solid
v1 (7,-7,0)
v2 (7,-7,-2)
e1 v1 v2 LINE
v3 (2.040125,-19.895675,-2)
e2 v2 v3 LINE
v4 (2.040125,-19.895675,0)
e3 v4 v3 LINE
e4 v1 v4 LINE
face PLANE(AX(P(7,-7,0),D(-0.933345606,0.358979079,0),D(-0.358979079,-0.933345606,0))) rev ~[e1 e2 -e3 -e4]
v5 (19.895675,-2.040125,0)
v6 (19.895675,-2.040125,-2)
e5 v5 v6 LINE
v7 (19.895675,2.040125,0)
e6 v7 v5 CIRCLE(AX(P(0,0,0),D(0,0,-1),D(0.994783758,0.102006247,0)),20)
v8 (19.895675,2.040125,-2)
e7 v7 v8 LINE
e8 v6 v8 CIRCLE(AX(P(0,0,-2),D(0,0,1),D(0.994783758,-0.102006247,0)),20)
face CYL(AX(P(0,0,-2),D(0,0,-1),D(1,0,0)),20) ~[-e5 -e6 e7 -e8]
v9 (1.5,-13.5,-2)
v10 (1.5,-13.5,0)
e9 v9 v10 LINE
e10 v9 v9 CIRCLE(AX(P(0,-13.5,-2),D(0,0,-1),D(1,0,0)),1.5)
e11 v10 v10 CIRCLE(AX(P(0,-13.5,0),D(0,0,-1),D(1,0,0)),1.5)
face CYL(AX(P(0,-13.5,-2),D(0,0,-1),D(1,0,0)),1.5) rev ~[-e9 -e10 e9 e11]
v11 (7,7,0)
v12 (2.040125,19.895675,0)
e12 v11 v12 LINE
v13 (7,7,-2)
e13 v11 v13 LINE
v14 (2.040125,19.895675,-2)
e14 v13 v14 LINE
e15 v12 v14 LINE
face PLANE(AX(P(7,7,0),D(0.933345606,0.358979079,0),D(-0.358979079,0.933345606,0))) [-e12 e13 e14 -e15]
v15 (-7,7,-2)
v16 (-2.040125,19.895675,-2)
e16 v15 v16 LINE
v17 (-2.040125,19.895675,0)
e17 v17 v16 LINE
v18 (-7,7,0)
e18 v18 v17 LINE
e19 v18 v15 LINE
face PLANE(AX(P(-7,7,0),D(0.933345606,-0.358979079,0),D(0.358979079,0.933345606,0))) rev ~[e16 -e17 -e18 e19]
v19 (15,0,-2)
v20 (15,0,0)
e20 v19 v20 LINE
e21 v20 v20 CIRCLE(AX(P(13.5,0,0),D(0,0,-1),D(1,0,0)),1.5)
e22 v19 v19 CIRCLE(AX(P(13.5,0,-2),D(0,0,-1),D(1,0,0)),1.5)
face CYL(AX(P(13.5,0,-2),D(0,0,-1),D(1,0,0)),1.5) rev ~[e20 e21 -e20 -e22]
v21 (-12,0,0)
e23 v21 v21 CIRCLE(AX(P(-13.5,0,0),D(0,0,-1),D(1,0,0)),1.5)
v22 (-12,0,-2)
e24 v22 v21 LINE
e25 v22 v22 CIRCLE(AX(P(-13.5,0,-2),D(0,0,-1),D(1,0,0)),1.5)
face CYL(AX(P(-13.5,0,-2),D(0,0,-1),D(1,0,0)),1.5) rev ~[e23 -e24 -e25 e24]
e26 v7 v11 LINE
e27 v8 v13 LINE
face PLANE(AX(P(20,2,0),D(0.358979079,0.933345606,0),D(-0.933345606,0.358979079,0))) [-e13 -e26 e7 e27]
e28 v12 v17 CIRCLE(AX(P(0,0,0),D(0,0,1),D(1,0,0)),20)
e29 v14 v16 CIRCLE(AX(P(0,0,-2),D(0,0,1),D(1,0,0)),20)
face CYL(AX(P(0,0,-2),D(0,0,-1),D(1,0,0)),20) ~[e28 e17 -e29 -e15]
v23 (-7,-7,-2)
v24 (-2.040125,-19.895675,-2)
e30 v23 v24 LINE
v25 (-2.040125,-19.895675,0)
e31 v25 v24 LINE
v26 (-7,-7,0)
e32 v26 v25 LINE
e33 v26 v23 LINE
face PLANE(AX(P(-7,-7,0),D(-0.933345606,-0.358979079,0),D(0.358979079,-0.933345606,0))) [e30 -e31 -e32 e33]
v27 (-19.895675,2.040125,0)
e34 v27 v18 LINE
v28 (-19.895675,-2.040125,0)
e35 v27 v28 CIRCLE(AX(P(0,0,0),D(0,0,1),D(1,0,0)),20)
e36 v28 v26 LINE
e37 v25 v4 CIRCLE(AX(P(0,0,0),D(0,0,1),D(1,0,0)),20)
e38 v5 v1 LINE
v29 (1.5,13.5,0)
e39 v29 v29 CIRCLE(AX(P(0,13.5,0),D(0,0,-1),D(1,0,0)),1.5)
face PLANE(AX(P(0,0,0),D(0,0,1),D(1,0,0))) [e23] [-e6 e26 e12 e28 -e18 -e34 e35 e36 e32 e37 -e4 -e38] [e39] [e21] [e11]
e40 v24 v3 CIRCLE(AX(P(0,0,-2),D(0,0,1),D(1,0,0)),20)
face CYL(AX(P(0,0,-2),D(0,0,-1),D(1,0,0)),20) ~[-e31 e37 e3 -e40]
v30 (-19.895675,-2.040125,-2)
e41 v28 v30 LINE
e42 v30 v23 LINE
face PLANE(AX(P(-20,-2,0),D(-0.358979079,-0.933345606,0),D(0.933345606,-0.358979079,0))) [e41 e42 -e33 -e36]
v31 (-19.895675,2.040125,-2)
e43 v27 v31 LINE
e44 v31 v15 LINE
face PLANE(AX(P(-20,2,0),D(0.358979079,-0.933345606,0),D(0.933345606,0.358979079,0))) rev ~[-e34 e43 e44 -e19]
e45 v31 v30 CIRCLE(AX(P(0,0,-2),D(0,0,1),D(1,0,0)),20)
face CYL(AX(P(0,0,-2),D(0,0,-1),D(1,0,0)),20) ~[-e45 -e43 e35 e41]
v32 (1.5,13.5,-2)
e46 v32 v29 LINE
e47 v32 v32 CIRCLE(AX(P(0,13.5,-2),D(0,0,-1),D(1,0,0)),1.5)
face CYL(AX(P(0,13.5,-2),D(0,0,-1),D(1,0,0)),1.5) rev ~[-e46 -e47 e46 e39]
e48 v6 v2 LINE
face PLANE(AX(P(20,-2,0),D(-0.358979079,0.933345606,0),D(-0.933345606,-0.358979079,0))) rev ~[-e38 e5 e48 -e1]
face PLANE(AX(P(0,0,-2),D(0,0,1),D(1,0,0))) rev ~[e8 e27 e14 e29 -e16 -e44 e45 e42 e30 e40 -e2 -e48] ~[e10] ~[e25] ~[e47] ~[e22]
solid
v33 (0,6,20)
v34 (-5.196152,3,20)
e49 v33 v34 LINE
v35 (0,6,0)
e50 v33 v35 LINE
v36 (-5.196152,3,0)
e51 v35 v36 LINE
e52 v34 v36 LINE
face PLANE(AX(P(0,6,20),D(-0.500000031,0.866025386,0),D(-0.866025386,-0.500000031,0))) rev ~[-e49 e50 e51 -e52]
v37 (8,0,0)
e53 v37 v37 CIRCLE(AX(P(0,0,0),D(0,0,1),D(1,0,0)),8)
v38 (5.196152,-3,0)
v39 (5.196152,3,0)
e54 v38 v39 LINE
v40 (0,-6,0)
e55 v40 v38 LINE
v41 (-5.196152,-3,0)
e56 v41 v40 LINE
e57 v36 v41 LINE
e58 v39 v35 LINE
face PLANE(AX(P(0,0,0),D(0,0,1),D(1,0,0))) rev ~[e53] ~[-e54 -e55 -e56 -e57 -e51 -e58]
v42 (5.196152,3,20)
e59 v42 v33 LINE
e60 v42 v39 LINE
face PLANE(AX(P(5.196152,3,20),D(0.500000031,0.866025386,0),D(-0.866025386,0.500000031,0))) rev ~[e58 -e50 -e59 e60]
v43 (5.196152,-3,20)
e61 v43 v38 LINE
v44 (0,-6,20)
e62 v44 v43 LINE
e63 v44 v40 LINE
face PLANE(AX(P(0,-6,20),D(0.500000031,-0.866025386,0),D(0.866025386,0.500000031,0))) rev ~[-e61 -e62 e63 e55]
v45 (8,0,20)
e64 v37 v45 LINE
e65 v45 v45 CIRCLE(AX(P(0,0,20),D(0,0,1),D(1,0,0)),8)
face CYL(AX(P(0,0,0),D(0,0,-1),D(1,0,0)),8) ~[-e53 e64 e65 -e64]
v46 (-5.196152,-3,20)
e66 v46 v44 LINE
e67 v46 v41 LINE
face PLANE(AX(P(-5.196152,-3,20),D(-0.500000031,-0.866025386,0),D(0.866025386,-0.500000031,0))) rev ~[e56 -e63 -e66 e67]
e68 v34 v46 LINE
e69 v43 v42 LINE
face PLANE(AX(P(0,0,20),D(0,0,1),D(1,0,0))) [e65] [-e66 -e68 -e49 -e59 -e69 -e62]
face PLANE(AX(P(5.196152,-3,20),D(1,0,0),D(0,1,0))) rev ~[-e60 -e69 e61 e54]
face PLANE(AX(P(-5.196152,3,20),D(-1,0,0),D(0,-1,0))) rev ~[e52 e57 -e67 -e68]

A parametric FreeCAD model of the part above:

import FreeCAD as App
import Part
import Sketcher
Q = App.Units.Quantity

doc = App.newDocument("Part")
body = doc.addObject("PartDesign::Body", "Body")

# Sketch on XY plane
sketch1 = body.newObject("Sketcher::SketchObject", "Sketch")
sketch1.AttachmentSupport = (doc.getObject("XY_Plane"), [""])
sketch1.MapMode = "FlatFace"
sketch1.AttachmentOffset = App.Placement(App.Vector(0, 0, 20), App.Rotation())
sketch1.addGeometry([
    Part.LineSegment(App.Vector(0, 6, 0), App.Vector(-5, 3, 0)),  # 0
    Part.LineSegment(App.Vector(-5, 3, 0), App.Vector(-5, -3, 0)),  # 1
    Part.LineSegment(App.Vector(-5, -3, 0), App.Vector(0, -6, 0)),  # 2
    Part.LineSegment(App.Vector(0, -6, 0), App.Vector(5, -3, 0)),  # 3
    Part.LineSegment(App.Vector(5, -3, 0), App.Vector(5, 3, 0)),  # 4
    Part.LineSegment(App.Vector(5, 3, 0), App.Vector(0, 6, 0)),  # 5
], False)
sketch1.addConstraint([
    Sketcher.Constraint("Coincident", 0, 2, 1, 1),
    Sketcher.Constraint("Coincident", 1, 2, 2, 1),
    Sketcher.Constraint("Coincident", 2, 2, 3, 1),
    Sketcher.Constraint("Coincident", 3, 2, 4, 1),
    Sketcher.Constraint("Coincident", 4, 2, 5, 1),
    Sketcher.Constraint("Coincident", 5, 2, 0, 1),
    Sketcher.Constraint("Vertical", 1),
    Sketcher.Constraint("Vertical", 4),
    Sketcher.Constraint("Symmetric", 0, 2, 3, 2, -1, 1),
    Sketcher.Constraint("Symmetric", 2, 2, 5, 2, -1, 1),
    Sketcher.Constraint("PointOnObject", 2, 2, -2),
    Sketcher.Constraint("Parallel", 2, 5),
    Sketcher.Constraint("Horizontal", 1, 2, 3, 2),
    Sketcher.Constraint("DistanceY", 1, 2, 1, 1, 6.0),
    Sketcher.Constraint("Angle", 0, Q("-149.999998 deg")),
    Sketcher.Constraint("Distance", 0, 6.0),
])
pad1 = body.newObject("PartDesign::Pad", "Pad")
pad1.Profile = sketch1
pad1.Length = 30
pad1.Reversed = True
body2 = doc.addObject("PartDesign::Body", "Body001")

# Sketch on XY plane
sketch2 = body2.newObject("Sketcher::SketchObject", "Sketch001")
sketch2.AttachmentSupport = (doc.getObject("XY_Plane001"), [""])
sketch2.MapMode = "FlatFace"
sketch2.addGeometry(Part.Circle(App.Vector(0, 0, 0), App.Vector(0, 0, 1), 8), False)
sketch2.addConstraint([
    Sketcher.Constraint("Coincident", 0, 3, -1, 1),
    Sketcher.Constraint("Diameter", 0, 16.0),
])
pad2 = body2.newObject("PartDesign::Pad", "Pad001")
pad2.Profile = sketch2
pad2.Length = 20
doc.recompute()

boolean = body2.newObject("PartDesign::Boolean", "Boolean")
boolean.Type = "Cut"
boolean.addObjects([body])
body3 = doc.addObject("PartDesign::Body", "Body002")
body3.AllowCompound = True

# Sketch on XY plane
sketch3 = body3.newObject("Sketcher::SketchObject", "Sketch002")
sketch3.AttachmentSupport = (doc.getObject("XY_Plane002"), [""])
sketch3.MapMode = "FlatFace"
sketch3.addGeometry([
    Part.LineSegment(App.Vector(-7, 7, 0), App.Vector(-2, 20, 0)),  # 0
    Part.LineSegment(App.Vector(-2, 20, 0), App.Vector(-20, 20, 0)),  # 1
    Part.LineSegment(App.Vector(-20, 20, 0), App.Vector(-20, 2, 0)),  # 2
    Part.LineSegment(App.Vector(-20, 2, 0), App.Vector(-7, 7, 0)),  # 3
    Part.LineSegment(App.Vector(-2, -20, 0), App.Vector(-7, -7, 0)),  # 4
    Part.LineSegment(App.Vector(-7, -7, 0), App.Vector(-20, -2, 0)),  # 5
    Part.LineSegment(App.Vector(-20, -2, 0), App.Vector(-20, -20, 0)),  # 6
    Part.LineSegment(App.Vector(-20, -20, 0), App.Vector(-2, -20, 0)),  # 7
    Part.LineSegment(App.Vector(7, -7, 0), App.Vector(2, -20, 0)),  # 8
    Part.LineSegment(App.Vector(2, -20, 0), App.Vector(20, -20, 0)),  # 9
    Part.LineSegment(App.Vector(20, -20, 0), App.Vector(20, -2, 0)),  # 10
    Part.LineSegment(App.Vector(20, -2, 0), App.Vector(7, -7, 0)),  # 11
    Part.LineSegment(App.Vector(2, 20, 0), App.Vector(7, 7, 0)),  # 12
    Part.LineSegment(App.Vector(7, 7, 0), App.Vector(20, 2, 0)),  # 13
    Part.LineSegment(App.Vector(20, 2, 0), App.Vector(20, 20, 0)),  # 14
    Part.LineSegment(App.Vector(20, 20, 0), App.Vector(2, 20, 0)),  # 15
], False)
sketch3.addConstraint([
    Sketcher.Constraint("Coincident", 0, 2, 1, 1),
    Sketcher.Constraint("Coincident", 1, 2, 2, 1),
    Sketcher.Constraint("Coincident", 2, 2, 3, 1),
    Sketcher.Constraint("Coincident", 3, 2, 0, 1),
    Sketcher.Constraint("Coincident", 4, 2, 5, 1),
    Sketcher.Constraint("Coincident", 5, 2, 6, 1),
    Sketcher.Constraint("Coincident", 6, 2, 7, 1),
    Sketcher.Constraint("Coincident", 7, 2, 4, 1),
    Sketcher.Constraint("Coincident", 8, 2, 9, 1),
    Sketcher.Constraint("Coincident", 9, 2, 10, 1),
    Sketcher.Constraint("Coincident", 10, 2, 11, 1),
    Sketcher.Constraint("Coincident", 11, 2, 8, 1),
    Sketcher.Constraint("Coincident", 12, 2, 13, 1),
    Sketcher.Constraint("Coincident", 13, 2, 14, 1),
    Sketcher.Constraint("Coincident", 14, 2, 15, 1),
    Sketcher.Constraint("Coincident", 15, 2, 12, 1),
    Sketcher.Constraint("Horizontal", 1),
    Sketcher.Constraint("Vertical", 2),
    Sketcher.Constraint("Vertical", 6),
    Sketcher.Constraint("Horizontal", 7),
    Sketcher.Constraint("Horizontal", 9),
    Sketcher.Constraint("Vertical", 10),
    Sketcher.Constraint("Vertical", 14),
    Sketcher.Constraint("Horizontal", 15),
    Sketcher.Constraint("Symmetric", 0, 2, 8, 2, -1, 1),
    Sketcher.Constraint("Symmetric", 2, 2, 10, 2, -1, 1),
    Sketcher.Constraint("Symmetric", 3, 2, 11, 2, -1, 1),
    Sketcher.Constraint("Symmetric", 4, 2, 12, 2, -1, 1),
    Sketcher.Constraint("Symmetric", 5, 2, 13, 2, -1, 1),
    Sketcher.Constraint("Symmetric", 7, 2, 15, 2, -1, 1),
    Sketcher.Constraint("Symmetric", 7, 2, 8, 2, -2),
    Sketcher.Constraint("Symmetric", 5, 2, 10, 2, -2),
    Sketcher.Constraint("Symmetric", 4, 2, 11, 2, -2),
    Sketcher.Constraint("Perpendicular", 3, 4),
    Sketcher.Constraint("Equal", 15, 2),
    Sketcher.Constraint("DistanceX", 1, 2, 1, 1, 18.0),
    Sketcher.Constraint("DistanceX", 0, 2, -1, 1, 2.0),
    Sketcher.Constraint("DistanceY", -1, 1, 0, 2, 20.0),
    Sketcher.Constraint("DistanceX", 3, 2, -1, 1, 7.0),
])
pad3 = body3.newObject("PartDesign::Pad", "Pad002")
pad3.Profile = sketch3
pad3.Length = 2
pad3.Reversed = True
body4 = doc.addObject("PartDesign::Body", "Body003")
body4.AllowCompound = True

# Sketch on XY plane
sketch4 = body4.newObject("Sketcher::SketchObject", "Sketch003")
sketch4.AttachmentSupport = (doc.getObject("XY_Plane003"), [""])
sketch4.MapMode = "FlatFace"
sketch4.AttachmentOffset = App.Placement(App.Vector(0, 0, -2), App.Rotation())
sketch4.addGeometry([
    Part.Circle(App.Vector(0, -13.5, 0), App.Vector(0, 0, 1), 1.5),
    Part.Circle(App.Vector(13.5, 0, 0), App.Vector(0, 0, 1), 1.5),
    Part.Circle(App.Vector(0, 13.5, 0), App.Vector(0, 0, 1), 1.5),
    Part.Circle(App.Vector(-13.5, 0, 0), App.Vector(0, 0, 1), 1.5),
], False)
sketch4.addConstraint([
    Sketcher.Constraint("Equal", 0, 1),
    Sketcher.Constraint("Equal", 1, 2),
    Sketcher.Constraint("Equal", 2, 3),
    Sketcher.Constraint("Symmetric", 0, 3, 2, 3, -1, 1),
    Sketcher.Constraint("Symmetric", 1, 3, 3, 3, -1, 1),
    Sketcher.Constraint("PointOnObject", 0, 3, -2),
    Sketcher.Constraint("PointOnObject", 1, 3, -1),
    Sketcher.Constraint("Diameter", 0, 3.0),
    Sketcher.Constraint("DistanceY", 0, 3, 2, 3, 27.0),
    Sketcher.Constraint("DistanceX", 3, 3, 1, 3, 27.0),
])
pad4 = body4.newObject("PartDesign::Pad", "Pad003")
pad4.Profile = sketch4
pad4.Length = 2
body5 = doc.addObject("PartDesign::Body", "Body004")

# Sketch on XY plane
sketch5 = body5.newObject("Sketcher::SketchObject", "Sketch004")
sketch5.AttachmentSupport = (doc.getObject("XY_Plane004"), [""])
sketch5.MapMode = "FlatFace"
sketch5.AttachmentOffset = App.Placement(App.Vector(0, 0, -2), App.Rotation())
sketch5.addGeometry(Part.Circle(App.Vector(0, 0, 0), App.Vector(0, 0, 1), 20), False)
sketch5.addConstraint([
    Sketcher.Constraint("Coincident", 0, 3, -1, 1),
    Sketcher.Constraint("Diameter", 0, 40.0),
])
pad5 = body5.newObject("PartDesign::Pad", "Pad004")
pad5.Profile = sketch5
pad5.Length = 2
doc.recompute()

boolean2 = body5.newObject("PartDesign::Boolean", "Boolean001")
boolean2.Type = "Cut"
boolean2.addObjects([body4])
doc.recompute()

boolean3 = body5.newObject("PartDesign::Boolean", "Boolean002")
boolean3.Type = "Cut"
boolean3.addObjects([body3])

doc.recompute()
